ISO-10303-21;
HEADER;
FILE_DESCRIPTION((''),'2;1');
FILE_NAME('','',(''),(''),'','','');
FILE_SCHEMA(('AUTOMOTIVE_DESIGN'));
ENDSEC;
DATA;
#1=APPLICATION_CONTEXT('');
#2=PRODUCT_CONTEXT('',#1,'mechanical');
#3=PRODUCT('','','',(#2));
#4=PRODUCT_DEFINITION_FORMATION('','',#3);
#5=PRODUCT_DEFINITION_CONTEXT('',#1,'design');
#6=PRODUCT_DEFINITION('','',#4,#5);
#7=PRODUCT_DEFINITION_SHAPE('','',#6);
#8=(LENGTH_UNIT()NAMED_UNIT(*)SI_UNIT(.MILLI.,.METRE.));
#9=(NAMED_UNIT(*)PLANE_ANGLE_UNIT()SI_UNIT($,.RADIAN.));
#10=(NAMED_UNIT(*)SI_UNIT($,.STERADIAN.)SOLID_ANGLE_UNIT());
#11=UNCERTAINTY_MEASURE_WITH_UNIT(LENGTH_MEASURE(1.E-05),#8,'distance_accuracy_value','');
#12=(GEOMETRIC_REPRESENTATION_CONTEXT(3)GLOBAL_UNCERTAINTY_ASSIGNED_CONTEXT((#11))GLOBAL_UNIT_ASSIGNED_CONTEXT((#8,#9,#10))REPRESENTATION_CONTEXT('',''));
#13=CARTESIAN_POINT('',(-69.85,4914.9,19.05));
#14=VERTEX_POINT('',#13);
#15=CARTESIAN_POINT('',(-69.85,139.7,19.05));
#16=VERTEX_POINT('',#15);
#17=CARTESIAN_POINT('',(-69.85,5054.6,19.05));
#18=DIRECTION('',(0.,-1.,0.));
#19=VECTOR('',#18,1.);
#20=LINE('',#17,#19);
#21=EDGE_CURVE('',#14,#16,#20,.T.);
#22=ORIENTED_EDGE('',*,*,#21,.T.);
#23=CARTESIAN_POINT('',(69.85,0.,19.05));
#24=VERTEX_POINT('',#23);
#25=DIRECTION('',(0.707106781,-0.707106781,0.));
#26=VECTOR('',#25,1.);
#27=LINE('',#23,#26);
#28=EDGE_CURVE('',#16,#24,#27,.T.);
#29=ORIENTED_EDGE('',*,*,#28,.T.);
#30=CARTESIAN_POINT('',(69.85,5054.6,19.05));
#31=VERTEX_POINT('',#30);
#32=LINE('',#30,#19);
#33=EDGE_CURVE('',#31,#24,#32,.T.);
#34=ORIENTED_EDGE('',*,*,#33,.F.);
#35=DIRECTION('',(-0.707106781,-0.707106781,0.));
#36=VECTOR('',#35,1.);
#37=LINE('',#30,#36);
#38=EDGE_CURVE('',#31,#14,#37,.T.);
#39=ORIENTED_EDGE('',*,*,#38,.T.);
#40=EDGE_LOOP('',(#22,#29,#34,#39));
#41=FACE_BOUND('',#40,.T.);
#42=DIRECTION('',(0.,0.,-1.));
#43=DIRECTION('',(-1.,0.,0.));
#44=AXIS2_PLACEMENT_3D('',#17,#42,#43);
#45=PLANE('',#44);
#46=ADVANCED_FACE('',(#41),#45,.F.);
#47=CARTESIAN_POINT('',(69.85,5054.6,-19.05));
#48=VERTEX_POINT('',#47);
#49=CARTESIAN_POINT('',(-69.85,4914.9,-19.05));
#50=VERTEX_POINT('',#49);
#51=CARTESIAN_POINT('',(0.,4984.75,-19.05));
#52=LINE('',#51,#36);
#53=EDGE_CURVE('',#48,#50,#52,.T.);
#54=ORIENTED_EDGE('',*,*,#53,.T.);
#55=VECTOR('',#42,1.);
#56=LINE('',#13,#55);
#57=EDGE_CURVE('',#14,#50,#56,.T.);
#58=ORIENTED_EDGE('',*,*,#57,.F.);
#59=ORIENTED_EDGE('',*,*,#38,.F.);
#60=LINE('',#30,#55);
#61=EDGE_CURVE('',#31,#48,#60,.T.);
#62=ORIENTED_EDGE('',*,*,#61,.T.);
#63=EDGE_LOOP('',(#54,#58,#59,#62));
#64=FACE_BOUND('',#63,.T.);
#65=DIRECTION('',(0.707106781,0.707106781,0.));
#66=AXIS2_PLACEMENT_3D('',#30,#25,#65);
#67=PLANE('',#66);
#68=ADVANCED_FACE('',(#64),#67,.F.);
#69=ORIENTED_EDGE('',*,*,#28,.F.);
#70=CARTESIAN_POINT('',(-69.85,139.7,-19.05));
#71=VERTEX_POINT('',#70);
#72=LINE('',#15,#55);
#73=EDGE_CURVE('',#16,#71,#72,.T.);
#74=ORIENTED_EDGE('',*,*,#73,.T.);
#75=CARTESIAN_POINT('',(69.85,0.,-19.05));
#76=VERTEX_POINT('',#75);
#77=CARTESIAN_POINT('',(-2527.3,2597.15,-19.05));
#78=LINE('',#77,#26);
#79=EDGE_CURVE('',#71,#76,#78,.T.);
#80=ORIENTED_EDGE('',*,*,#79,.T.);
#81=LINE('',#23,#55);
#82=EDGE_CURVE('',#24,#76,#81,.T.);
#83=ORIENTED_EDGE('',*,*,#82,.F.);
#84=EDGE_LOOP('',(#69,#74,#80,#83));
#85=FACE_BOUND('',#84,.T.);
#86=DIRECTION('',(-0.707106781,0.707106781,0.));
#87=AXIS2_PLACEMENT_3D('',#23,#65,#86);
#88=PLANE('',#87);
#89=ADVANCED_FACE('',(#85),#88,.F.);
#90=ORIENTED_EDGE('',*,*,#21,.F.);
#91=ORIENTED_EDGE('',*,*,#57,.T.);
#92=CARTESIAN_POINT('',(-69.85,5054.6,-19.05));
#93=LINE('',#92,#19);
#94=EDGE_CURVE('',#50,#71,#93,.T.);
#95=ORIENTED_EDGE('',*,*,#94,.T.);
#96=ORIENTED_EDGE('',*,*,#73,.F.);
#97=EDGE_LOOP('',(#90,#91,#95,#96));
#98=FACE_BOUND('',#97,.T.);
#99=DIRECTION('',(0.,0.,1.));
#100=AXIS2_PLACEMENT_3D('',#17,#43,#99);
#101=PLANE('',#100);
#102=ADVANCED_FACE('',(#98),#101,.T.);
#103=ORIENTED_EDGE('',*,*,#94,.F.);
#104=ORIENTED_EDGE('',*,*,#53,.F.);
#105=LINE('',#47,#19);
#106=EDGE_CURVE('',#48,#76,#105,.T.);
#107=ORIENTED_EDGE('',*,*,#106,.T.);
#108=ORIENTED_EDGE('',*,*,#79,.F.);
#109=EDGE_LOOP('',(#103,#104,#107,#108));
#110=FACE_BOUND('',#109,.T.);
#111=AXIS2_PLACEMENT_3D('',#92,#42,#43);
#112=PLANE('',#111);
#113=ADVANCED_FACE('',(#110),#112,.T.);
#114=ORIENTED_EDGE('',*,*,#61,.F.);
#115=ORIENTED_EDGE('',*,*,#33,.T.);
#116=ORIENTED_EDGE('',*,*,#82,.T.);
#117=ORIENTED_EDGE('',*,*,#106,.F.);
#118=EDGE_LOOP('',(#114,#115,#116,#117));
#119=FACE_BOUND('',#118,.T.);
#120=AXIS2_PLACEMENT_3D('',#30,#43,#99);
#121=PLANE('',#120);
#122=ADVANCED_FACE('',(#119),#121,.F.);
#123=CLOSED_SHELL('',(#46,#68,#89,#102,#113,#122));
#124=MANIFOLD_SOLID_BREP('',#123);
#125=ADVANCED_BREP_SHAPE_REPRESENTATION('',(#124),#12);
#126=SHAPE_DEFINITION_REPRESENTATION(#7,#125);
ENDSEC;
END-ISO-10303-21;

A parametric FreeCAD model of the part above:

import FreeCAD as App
import Part
import Sketcher
from FreeCAD import Vector
Q = App.Units.Quantity


def add_polygon(sketch, points):
    """Adds a closed chain of lines whose ends are joined by coincident constraints."""
    first, n = sketch.GeometryCount, len(points)
    for a, b in zip(points, points[1:] + points[:1]):
        sketch.addGeometry(Part.LineSegment(App.Vector(*a, 0), App.Vector(*b, 0)), False)
    for i in range(n):
        sketch.addConstraint(Sketcher.Constraint("Coincident", first + i, 2, first + (i + 1) % n, 1))

doc = App.newDocument("Part")
body = doc.addObject("PartDesign::Body", "Body")

# Sketch on XZ plane
sketch1 = body.newObject("Sketcher::SketchObject", "Sketch")
sketch1.AttachmentSupport = (doc.getObject("XZ_Plane"), [""])
sketch1.MapMode = "FlatFace"
add_polygon(sketch1, [(-69.85, -19.05), (-69.85, 19.05), (69.85, 19.05), (69.85, -19.05)])  # lines 0-3
sketch1.addConstraint([
    Sketcher.Constraint("Vertical", 0),
    Sketcher.Constraint("Horizontal", 1),
    Sketcher.Constraint("Vertical", 2),
    Sketcher.Constraint("Horizontal", 3),
    Sketcher.Constraint("Symmetric", 0, 2, 2, 2, -1, 1),
    Sketcher.Constraint("DistanceX", 1, 1, 1, 2, Q("5.5 in")),
    Sketcher.Constraint("DistanceY", 0, 1, 0, 2, Q("1.5 in")),
])
pad1 = body.newObject("PartDesign::Pad", "Pad")
pad1.Profile = sketch1
pad1.Length = Q("199 in")
pad1.Reversed = True

# Sketch on XY plane
sketch2 = body.newObject("Sketcher::SketchObject", "Sketch001")
sketch2.AttachmentSupport = (doc.getObject("XY_Plane"), [""])
sketch2.MapMode = "FlatFace"
sketch2.AttachmentOffset = App.Placement(Vector(0, 0, -0.75 * 25.4), App.Rotation())
add_polygon(sketch2, [(-69.85, 139.7), (69.85, 0), (-69.85, 0)])  # lines 0-2
add_polygon(sketch2, [(69.85, 5054.6), (-69.85, 4914.9), (-69.85, 5054.6)])  # lines 3-5
sketch2.addConstraint([
    Sketcher.Constraint("Horizontal", 1),
    Sketcher.Constraint("Vertical", 2),
    Sketcher.Constraint("Vertical", 4),
    Sketcher.Constraint("Horizontal", 5),
    Sketcher.Constraint("Symmetric", 0, 2, 1, 2, -1, 1),
    Sketcher.Constraint("Perpendicular", 0, 3),
    Sketcher.Constraint("Vertical", 2, 2, 3, 2),
    Sketcher.Constraint("Vertical", 0, 2, 5, 2),
    Sketcher.Constraint("Equal", 5, 2),
    Sketcher.Constraint("DistanceX", 1, 2, 1, 1, Q("5.5 in")),
    Sketcher.Constraint("DistanceY", -1, 1, 4, 2, Q("199 in")),
])
pocket1 = body.newObject("PartDesign::Pocket", "Pocket")
pocket1.Profile = sketch2
pocket1.Type = "ThroughAll"
pocket1.Midplane = True

doc.recompute()
